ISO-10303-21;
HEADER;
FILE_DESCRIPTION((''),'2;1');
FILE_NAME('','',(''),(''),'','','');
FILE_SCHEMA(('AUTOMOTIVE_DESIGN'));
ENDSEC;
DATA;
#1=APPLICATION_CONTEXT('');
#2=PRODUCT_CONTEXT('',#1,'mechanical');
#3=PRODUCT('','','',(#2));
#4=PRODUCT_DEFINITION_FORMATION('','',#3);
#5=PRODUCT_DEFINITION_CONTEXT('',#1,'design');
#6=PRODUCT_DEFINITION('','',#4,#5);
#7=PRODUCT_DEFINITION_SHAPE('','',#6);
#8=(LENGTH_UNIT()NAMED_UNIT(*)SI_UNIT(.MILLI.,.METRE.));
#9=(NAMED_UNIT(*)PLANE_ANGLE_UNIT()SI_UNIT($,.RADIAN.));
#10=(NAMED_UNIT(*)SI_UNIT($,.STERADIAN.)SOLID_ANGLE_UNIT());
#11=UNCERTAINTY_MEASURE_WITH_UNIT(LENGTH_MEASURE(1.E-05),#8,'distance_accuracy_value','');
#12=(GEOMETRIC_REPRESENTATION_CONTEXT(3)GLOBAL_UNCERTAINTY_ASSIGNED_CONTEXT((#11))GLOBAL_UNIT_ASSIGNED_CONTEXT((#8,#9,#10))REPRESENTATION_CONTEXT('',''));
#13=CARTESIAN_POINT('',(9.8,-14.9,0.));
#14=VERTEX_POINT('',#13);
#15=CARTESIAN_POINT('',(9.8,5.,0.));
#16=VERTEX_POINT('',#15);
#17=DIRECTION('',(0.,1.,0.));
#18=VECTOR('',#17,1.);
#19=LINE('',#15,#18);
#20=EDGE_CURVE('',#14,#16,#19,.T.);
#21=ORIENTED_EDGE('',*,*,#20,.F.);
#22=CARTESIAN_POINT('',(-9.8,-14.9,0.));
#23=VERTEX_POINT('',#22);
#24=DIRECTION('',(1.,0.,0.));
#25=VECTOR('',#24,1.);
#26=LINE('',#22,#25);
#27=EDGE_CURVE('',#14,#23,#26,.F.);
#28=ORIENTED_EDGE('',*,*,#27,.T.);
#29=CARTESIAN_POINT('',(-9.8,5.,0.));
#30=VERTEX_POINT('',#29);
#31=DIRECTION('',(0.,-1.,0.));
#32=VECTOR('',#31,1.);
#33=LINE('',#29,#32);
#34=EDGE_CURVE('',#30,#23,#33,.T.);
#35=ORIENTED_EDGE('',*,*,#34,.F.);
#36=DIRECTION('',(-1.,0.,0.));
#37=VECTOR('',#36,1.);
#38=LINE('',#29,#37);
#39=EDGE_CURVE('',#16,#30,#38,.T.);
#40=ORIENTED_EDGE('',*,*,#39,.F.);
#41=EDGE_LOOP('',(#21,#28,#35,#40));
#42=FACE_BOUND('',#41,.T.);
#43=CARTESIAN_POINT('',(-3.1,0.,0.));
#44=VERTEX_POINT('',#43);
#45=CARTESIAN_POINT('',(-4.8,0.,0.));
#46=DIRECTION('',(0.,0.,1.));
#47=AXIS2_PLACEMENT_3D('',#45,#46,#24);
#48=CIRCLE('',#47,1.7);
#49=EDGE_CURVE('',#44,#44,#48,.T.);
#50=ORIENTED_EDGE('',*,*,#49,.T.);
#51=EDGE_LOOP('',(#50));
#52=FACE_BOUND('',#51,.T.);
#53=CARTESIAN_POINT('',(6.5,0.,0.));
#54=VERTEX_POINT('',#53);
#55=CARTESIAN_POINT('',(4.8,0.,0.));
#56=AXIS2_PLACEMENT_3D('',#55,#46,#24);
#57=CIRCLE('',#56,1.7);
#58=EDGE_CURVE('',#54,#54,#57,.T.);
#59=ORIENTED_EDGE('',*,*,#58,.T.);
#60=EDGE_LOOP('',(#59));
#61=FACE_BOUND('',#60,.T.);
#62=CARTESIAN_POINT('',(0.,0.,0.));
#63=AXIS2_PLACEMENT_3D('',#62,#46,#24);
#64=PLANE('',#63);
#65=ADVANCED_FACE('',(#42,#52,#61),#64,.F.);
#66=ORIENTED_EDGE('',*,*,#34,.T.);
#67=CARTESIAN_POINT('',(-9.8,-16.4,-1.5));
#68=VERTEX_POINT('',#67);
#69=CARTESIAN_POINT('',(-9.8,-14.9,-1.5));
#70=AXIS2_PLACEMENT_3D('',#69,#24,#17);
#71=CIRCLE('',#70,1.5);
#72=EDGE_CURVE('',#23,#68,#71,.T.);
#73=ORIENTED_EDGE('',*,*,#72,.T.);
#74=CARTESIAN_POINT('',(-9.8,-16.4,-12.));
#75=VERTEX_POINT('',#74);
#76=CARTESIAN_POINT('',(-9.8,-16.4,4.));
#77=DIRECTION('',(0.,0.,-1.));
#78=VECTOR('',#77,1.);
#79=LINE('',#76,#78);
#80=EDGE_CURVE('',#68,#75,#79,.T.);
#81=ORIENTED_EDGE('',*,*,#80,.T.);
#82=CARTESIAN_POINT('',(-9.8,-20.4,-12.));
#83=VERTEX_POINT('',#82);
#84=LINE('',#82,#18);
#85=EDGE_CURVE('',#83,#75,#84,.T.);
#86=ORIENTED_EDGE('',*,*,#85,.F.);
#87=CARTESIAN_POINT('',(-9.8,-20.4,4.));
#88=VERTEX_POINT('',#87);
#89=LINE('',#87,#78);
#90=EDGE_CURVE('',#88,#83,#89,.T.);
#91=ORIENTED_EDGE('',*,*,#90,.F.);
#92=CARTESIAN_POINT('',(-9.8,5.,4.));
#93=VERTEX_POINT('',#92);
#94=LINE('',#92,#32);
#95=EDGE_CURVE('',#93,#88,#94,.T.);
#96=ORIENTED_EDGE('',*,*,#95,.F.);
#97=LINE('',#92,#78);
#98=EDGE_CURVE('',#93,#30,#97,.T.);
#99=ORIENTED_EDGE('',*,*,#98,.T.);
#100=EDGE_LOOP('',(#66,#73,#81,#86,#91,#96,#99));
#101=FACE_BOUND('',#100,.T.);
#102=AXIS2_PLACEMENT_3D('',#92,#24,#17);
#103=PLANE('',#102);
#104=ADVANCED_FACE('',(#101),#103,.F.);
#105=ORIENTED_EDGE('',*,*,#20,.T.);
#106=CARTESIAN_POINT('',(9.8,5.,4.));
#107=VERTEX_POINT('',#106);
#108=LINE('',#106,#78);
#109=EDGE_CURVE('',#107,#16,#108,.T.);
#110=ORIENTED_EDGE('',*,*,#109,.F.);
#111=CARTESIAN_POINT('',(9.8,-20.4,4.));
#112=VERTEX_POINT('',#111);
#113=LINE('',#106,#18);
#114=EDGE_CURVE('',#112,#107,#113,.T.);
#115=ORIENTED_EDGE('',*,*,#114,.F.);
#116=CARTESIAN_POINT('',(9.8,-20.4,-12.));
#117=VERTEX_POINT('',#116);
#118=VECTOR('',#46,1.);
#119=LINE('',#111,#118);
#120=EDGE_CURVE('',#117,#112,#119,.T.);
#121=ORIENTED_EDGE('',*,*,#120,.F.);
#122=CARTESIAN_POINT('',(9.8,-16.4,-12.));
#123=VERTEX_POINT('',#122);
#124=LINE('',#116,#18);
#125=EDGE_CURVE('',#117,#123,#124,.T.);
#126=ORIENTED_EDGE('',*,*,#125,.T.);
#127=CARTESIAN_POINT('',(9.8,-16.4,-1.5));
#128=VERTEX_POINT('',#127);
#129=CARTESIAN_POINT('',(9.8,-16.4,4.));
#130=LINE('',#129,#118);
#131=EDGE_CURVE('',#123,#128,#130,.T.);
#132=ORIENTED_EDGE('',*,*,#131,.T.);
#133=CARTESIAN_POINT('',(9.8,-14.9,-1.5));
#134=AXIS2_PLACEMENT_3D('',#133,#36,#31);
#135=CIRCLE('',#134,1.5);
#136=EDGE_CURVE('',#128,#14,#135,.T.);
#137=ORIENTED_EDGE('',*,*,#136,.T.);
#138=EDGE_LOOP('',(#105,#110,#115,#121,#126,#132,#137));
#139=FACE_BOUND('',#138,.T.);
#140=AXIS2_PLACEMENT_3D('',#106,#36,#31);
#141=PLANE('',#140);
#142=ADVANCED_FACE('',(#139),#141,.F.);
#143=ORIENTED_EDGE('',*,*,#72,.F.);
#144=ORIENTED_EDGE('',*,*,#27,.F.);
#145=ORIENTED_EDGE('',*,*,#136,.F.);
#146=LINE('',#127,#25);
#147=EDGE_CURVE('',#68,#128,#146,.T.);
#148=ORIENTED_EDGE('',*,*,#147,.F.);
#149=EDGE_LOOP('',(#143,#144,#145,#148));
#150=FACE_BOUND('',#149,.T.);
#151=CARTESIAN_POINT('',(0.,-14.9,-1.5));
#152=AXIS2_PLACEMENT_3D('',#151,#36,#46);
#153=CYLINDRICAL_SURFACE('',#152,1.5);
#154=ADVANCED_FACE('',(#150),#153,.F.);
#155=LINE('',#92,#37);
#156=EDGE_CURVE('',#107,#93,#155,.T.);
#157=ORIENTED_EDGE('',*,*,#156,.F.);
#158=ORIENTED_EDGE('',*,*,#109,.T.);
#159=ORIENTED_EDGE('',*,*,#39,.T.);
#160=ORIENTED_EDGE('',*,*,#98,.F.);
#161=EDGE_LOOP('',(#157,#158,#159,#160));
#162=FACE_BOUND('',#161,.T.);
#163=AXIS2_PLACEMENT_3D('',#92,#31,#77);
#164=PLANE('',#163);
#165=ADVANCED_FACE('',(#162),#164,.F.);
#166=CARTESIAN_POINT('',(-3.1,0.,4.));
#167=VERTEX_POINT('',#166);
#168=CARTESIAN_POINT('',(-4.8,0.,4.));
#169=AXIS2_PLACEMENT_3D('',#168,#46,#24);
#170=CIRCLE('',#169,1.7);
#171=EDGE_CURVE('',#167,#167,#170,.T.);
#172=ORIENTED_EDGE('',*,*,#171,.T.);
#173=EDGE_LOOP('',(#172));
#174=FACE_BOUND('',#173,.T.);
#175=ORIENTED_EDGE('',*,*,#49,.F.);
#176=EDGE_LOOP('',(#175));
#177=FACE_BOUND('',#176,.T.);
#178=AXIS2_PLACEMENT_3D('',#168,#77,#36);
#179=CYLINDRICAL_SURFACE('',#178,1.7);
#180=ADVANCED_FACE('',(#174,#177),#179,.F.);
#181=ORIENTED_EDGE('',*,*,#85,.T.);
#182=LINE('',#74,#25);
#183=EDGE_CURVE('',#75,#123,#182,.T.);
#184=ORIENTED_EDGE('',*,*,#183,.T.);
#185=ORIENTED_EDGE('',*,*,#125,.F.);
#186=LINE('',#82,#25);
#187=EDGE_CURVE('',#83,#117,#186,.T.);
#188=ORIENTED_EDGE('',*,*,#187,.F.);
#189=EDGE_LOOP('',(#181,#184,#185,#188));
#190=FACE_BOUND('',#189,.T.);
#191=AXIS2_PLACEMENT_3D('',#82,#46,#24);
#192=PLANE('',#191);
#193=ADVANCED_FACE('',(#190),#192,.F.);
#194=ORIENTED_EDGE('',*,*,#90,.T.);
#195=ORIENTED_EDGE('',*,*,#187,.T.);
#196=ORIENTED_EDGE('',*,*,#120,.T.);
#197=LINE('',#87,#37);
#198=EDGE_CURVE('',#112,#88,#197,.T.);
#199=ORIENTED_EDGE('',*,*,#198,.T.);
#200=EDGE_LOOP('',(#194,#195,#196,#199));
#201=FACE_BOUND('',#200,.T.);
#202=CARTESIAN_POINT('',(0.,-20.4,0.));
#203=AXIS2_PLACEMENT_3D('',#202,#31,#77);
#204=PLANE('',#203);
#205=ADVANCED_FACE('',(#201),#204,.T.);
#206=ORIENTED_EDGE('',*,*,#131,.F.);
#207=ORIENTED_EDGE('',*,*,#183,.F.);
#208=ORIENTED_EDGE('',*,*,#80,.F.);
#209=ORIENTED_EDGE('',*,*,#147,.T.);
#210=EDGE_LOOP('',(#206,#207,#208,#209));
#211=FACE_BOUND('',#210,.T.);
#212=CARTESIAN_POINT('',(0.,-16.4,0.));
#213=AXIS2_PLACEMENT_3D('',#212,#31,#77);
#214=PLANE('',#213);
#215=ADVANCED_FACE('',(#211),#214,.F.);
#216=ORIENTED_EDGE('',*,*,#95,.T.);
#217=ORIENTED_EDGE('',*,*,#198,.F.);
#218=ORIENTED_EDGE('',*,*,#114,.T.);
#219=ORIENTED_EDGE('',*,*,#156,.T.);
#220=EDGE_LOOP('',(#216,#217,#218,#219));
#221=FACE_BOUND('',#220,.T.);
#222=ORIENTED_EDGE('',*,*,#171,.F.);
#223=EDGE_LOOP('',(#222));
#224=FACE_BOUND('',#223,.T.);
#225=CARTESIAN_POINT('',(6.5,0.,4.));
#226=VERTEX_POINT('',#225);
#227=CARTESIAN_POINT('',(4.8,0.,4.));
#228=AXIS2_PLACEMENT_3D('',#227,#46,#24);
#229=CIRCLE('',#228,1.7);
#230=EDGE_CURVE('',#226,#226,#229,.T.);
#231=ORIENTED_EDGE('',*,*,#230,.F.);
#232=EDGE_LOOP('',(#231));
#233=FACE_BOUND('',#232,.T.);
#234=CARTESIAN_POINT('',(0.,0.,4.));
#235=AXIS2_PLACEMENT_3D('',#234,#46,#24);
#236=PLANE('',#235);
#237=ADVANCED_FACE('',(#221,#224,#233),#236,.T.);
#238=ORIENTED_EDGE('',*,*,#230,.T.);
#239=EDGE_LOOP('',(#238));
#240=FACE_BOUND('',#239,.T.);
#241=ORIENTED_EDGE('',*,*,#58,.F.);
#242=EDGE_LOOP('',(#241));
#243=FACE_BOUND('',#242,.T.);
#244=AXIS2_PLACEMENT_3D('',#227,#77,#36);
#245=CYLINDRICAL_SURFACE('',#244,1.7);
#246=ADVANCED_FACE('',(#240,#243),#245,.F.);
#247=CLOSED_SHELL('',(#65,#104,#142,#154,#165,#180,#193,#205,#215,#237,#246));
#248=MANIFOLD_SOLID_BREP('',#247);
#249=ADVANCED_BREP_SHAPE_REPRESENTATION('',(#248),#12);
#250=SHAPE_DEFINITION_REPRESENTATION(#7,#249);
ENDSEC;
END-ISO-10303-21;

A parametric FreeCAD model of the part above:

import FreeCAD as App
import Part
import Sketcher


def edges_at(feature, points):
    """Names of the edges that pass closest to the given points."""
    edges = feature.Shape.Edges
    near = lambda p: min(range(len(edges)), key=lambda i: edges[i].distToShape(Part.Vertex(*p))[0])
    return sorted({f"Edge{near(p) + 1}" for p in points})

doc = App.newDocument("Part")
body = doc.addObject("PartDesign::Body", "Body")

# Sketch on XY plane
sketch1 = body.newObject("Sketcher::SketchObject", "Sketch")
sketch1.AttachmentSupport = (doc.getObject("XY_Plane"), [""])
sketch1.MapMode = "FlatFace"
sketch1.addGeometry(Part.LineSegment(App.Vector(-9.8, 5, 0), App.Vector(-9.8, -16.4, 0)), False)
sketch1.addGeometry(Part.LineSegment(App.Vector(-9.8, -16.4, 0), App.Vector(9.8, -16.4, 0)), False)
sketch1.addGeometry(Part.LineSegment(App.Vector(9.8, -16.4, 0), App.Vector(9.8, 5, 0)), False)
sketch1.addGeometry(Part.LineSegment(App.Vector(9.8, 5, 0), App.Vector(-9.8, 5, 0)), False)
sketch1.addGeometry(Part.Circle(App.Vector(-4.8, 0, 0), App.Vector(0, 0, 1), 1.7), False)
sketch1.addGeometry(Part.Circle(App.Vector(4.8, 0, 0), App.Vector(0, 0, 1), 1.7), False)
sketch1.addConstraint(Sketcher.Constraint("Coincident", 0, 2, 1, 1))
sketch1.addConstraint(Sketcher.Constraint("Coincident", 1, 2, 2, 1))
sketch1.addConstraint(Sketcher.Constraint("Coincident", 2, 2, 3, 1))
sketch1.addConstraint(Sketcher.Constraint("Coincident", 3, 2, 0, 1))
sketch1.addConstraint(Sketcher.Constraint("Vertical", 0))
sketch1.addConstraint(Sketcher.Constraint("Horizontal", 1))
sketch1.addConstraint(Sketcher.Constraint("Vertical", 2))
sketch1.addConstraint(Sketcher.Constraint("Horizontal", 3))
sketch1.addConstraint(Sketcher.Constraint("Equal", 4, 5))
sketch1.addConstraint(Sketcher.Constraint("Symmetric", 4, 3, 5, 3, -1, 1))
sketch1.addConstraint(Sketcher.Constraint("PointOnObject", 4, 3, -1))
sketch1.addConstraint(Sketcher.Constraint("Diameter", 4, 3.4))
sketch1.addConstraint(Sketcher.Constraint("DistanceX", 1, 1, 1, 2, 19.6))
sketch1.addConstraint(Sketcher.Constraint("DistanceY", 0, 2, 0, 1, 21.4))
sketch1.addConstraint(Sketcher.Constraint("DistanceY", -1, 1, 2, 2, 5.0))
sketch1.addConstraint(Sketcher.Constraint("DistanceX", 0, 2, 4, 3, 5.0))
sketch1.addConstraint(Sketcher.Constraint("DistanceX", 5, 3, 1, 2, 5.0))
pad1 = body.newObject("PartDesign::Pad", "Pad")
pad1.Profile = sketch1
pad1.Length = 4

# Sketch on XZ plane
sketch2 = body.newObject("Sketcher::SketchObject", "Sketch001")
sketch2.AttachmentSupport = (doc.getObject("XZ_Plane"), [""])
sketch2.MapMode = "FlatFace"
sketch2.AttachmentOffset = App.Placement(App.Vector(0, 0, 16.4), App.Rotation())
sketch2.addGeometry(Part.LineSegment(App.Vector(-10, 4, 0), App.Vector(-10, -12, 0)), False)
sketch2.addGeometry(Part.LineSegment(App.Vector(-10, -12, 0), App.Vector(10, -12, 0)), False)
sketch2.addGeometry(Part.LineSegment(App.Vector(10, -12, 0), App.Vector(10, 4, 0)), False)
sketch2.addGeometry(Part.LineSegment(App.Vector(10, 4, 0), App.Vector(-10, 4, 0)), False)
sketch2.addConstraint(Sketcher.Constraint("Coincident", 0, 2, 1, 1))
sketch2.addConstraint(Sketcher.Constraint("Coincident", 1, 2, 2, 1))
sketch2.addConstraint(Sketcher.Constraint("Coincident", 2, 2, 3, 1))
sketch2.addConstraint(Sketcher.Constraint("Coincident", 3, 2, 0, 1))
sketch2.addConstraint(Sketcher.Constraint("Vertical", 0))
sketch2.addConstraint(Sketcher.Constraint("Horizontal", 1))
sketch2.addConstraint(Sketcher.Constraint("Vertical", 2))
sketch2.addConstraint(Sketcher.Constraint("Horizontal", 3))
sketch2.addConstraint(Sketcher.Constraint("DistanceY", 0, 2, 0, 1, 16.0))
sketch2.addConstraint(Sketcher.Constraint("DistanceX", 1, 1, 1, 2, 19.6))
sketch2.addConstraint(Sketcher.Constraint("DistanceY", 0, 2, -1, 1, 12.0))
sketch2.addConstraint(Sketcher.Constraint("DistanceX", 0, 2, -1, 1, 9.8))
pad2 = body.newObject("PartDesign::Pad", "Pad001")
pad2.Profile = sketch2
pad2.Length = 4
doc.recompute()

fillet = body.newObject("PartDesign::Fillet", "Fillet")
fillet.Base = (pad2, edges_at(pad2, [(0, -16.4, 0)]))
fillet.Radius = 1.5

doc.recompute()
